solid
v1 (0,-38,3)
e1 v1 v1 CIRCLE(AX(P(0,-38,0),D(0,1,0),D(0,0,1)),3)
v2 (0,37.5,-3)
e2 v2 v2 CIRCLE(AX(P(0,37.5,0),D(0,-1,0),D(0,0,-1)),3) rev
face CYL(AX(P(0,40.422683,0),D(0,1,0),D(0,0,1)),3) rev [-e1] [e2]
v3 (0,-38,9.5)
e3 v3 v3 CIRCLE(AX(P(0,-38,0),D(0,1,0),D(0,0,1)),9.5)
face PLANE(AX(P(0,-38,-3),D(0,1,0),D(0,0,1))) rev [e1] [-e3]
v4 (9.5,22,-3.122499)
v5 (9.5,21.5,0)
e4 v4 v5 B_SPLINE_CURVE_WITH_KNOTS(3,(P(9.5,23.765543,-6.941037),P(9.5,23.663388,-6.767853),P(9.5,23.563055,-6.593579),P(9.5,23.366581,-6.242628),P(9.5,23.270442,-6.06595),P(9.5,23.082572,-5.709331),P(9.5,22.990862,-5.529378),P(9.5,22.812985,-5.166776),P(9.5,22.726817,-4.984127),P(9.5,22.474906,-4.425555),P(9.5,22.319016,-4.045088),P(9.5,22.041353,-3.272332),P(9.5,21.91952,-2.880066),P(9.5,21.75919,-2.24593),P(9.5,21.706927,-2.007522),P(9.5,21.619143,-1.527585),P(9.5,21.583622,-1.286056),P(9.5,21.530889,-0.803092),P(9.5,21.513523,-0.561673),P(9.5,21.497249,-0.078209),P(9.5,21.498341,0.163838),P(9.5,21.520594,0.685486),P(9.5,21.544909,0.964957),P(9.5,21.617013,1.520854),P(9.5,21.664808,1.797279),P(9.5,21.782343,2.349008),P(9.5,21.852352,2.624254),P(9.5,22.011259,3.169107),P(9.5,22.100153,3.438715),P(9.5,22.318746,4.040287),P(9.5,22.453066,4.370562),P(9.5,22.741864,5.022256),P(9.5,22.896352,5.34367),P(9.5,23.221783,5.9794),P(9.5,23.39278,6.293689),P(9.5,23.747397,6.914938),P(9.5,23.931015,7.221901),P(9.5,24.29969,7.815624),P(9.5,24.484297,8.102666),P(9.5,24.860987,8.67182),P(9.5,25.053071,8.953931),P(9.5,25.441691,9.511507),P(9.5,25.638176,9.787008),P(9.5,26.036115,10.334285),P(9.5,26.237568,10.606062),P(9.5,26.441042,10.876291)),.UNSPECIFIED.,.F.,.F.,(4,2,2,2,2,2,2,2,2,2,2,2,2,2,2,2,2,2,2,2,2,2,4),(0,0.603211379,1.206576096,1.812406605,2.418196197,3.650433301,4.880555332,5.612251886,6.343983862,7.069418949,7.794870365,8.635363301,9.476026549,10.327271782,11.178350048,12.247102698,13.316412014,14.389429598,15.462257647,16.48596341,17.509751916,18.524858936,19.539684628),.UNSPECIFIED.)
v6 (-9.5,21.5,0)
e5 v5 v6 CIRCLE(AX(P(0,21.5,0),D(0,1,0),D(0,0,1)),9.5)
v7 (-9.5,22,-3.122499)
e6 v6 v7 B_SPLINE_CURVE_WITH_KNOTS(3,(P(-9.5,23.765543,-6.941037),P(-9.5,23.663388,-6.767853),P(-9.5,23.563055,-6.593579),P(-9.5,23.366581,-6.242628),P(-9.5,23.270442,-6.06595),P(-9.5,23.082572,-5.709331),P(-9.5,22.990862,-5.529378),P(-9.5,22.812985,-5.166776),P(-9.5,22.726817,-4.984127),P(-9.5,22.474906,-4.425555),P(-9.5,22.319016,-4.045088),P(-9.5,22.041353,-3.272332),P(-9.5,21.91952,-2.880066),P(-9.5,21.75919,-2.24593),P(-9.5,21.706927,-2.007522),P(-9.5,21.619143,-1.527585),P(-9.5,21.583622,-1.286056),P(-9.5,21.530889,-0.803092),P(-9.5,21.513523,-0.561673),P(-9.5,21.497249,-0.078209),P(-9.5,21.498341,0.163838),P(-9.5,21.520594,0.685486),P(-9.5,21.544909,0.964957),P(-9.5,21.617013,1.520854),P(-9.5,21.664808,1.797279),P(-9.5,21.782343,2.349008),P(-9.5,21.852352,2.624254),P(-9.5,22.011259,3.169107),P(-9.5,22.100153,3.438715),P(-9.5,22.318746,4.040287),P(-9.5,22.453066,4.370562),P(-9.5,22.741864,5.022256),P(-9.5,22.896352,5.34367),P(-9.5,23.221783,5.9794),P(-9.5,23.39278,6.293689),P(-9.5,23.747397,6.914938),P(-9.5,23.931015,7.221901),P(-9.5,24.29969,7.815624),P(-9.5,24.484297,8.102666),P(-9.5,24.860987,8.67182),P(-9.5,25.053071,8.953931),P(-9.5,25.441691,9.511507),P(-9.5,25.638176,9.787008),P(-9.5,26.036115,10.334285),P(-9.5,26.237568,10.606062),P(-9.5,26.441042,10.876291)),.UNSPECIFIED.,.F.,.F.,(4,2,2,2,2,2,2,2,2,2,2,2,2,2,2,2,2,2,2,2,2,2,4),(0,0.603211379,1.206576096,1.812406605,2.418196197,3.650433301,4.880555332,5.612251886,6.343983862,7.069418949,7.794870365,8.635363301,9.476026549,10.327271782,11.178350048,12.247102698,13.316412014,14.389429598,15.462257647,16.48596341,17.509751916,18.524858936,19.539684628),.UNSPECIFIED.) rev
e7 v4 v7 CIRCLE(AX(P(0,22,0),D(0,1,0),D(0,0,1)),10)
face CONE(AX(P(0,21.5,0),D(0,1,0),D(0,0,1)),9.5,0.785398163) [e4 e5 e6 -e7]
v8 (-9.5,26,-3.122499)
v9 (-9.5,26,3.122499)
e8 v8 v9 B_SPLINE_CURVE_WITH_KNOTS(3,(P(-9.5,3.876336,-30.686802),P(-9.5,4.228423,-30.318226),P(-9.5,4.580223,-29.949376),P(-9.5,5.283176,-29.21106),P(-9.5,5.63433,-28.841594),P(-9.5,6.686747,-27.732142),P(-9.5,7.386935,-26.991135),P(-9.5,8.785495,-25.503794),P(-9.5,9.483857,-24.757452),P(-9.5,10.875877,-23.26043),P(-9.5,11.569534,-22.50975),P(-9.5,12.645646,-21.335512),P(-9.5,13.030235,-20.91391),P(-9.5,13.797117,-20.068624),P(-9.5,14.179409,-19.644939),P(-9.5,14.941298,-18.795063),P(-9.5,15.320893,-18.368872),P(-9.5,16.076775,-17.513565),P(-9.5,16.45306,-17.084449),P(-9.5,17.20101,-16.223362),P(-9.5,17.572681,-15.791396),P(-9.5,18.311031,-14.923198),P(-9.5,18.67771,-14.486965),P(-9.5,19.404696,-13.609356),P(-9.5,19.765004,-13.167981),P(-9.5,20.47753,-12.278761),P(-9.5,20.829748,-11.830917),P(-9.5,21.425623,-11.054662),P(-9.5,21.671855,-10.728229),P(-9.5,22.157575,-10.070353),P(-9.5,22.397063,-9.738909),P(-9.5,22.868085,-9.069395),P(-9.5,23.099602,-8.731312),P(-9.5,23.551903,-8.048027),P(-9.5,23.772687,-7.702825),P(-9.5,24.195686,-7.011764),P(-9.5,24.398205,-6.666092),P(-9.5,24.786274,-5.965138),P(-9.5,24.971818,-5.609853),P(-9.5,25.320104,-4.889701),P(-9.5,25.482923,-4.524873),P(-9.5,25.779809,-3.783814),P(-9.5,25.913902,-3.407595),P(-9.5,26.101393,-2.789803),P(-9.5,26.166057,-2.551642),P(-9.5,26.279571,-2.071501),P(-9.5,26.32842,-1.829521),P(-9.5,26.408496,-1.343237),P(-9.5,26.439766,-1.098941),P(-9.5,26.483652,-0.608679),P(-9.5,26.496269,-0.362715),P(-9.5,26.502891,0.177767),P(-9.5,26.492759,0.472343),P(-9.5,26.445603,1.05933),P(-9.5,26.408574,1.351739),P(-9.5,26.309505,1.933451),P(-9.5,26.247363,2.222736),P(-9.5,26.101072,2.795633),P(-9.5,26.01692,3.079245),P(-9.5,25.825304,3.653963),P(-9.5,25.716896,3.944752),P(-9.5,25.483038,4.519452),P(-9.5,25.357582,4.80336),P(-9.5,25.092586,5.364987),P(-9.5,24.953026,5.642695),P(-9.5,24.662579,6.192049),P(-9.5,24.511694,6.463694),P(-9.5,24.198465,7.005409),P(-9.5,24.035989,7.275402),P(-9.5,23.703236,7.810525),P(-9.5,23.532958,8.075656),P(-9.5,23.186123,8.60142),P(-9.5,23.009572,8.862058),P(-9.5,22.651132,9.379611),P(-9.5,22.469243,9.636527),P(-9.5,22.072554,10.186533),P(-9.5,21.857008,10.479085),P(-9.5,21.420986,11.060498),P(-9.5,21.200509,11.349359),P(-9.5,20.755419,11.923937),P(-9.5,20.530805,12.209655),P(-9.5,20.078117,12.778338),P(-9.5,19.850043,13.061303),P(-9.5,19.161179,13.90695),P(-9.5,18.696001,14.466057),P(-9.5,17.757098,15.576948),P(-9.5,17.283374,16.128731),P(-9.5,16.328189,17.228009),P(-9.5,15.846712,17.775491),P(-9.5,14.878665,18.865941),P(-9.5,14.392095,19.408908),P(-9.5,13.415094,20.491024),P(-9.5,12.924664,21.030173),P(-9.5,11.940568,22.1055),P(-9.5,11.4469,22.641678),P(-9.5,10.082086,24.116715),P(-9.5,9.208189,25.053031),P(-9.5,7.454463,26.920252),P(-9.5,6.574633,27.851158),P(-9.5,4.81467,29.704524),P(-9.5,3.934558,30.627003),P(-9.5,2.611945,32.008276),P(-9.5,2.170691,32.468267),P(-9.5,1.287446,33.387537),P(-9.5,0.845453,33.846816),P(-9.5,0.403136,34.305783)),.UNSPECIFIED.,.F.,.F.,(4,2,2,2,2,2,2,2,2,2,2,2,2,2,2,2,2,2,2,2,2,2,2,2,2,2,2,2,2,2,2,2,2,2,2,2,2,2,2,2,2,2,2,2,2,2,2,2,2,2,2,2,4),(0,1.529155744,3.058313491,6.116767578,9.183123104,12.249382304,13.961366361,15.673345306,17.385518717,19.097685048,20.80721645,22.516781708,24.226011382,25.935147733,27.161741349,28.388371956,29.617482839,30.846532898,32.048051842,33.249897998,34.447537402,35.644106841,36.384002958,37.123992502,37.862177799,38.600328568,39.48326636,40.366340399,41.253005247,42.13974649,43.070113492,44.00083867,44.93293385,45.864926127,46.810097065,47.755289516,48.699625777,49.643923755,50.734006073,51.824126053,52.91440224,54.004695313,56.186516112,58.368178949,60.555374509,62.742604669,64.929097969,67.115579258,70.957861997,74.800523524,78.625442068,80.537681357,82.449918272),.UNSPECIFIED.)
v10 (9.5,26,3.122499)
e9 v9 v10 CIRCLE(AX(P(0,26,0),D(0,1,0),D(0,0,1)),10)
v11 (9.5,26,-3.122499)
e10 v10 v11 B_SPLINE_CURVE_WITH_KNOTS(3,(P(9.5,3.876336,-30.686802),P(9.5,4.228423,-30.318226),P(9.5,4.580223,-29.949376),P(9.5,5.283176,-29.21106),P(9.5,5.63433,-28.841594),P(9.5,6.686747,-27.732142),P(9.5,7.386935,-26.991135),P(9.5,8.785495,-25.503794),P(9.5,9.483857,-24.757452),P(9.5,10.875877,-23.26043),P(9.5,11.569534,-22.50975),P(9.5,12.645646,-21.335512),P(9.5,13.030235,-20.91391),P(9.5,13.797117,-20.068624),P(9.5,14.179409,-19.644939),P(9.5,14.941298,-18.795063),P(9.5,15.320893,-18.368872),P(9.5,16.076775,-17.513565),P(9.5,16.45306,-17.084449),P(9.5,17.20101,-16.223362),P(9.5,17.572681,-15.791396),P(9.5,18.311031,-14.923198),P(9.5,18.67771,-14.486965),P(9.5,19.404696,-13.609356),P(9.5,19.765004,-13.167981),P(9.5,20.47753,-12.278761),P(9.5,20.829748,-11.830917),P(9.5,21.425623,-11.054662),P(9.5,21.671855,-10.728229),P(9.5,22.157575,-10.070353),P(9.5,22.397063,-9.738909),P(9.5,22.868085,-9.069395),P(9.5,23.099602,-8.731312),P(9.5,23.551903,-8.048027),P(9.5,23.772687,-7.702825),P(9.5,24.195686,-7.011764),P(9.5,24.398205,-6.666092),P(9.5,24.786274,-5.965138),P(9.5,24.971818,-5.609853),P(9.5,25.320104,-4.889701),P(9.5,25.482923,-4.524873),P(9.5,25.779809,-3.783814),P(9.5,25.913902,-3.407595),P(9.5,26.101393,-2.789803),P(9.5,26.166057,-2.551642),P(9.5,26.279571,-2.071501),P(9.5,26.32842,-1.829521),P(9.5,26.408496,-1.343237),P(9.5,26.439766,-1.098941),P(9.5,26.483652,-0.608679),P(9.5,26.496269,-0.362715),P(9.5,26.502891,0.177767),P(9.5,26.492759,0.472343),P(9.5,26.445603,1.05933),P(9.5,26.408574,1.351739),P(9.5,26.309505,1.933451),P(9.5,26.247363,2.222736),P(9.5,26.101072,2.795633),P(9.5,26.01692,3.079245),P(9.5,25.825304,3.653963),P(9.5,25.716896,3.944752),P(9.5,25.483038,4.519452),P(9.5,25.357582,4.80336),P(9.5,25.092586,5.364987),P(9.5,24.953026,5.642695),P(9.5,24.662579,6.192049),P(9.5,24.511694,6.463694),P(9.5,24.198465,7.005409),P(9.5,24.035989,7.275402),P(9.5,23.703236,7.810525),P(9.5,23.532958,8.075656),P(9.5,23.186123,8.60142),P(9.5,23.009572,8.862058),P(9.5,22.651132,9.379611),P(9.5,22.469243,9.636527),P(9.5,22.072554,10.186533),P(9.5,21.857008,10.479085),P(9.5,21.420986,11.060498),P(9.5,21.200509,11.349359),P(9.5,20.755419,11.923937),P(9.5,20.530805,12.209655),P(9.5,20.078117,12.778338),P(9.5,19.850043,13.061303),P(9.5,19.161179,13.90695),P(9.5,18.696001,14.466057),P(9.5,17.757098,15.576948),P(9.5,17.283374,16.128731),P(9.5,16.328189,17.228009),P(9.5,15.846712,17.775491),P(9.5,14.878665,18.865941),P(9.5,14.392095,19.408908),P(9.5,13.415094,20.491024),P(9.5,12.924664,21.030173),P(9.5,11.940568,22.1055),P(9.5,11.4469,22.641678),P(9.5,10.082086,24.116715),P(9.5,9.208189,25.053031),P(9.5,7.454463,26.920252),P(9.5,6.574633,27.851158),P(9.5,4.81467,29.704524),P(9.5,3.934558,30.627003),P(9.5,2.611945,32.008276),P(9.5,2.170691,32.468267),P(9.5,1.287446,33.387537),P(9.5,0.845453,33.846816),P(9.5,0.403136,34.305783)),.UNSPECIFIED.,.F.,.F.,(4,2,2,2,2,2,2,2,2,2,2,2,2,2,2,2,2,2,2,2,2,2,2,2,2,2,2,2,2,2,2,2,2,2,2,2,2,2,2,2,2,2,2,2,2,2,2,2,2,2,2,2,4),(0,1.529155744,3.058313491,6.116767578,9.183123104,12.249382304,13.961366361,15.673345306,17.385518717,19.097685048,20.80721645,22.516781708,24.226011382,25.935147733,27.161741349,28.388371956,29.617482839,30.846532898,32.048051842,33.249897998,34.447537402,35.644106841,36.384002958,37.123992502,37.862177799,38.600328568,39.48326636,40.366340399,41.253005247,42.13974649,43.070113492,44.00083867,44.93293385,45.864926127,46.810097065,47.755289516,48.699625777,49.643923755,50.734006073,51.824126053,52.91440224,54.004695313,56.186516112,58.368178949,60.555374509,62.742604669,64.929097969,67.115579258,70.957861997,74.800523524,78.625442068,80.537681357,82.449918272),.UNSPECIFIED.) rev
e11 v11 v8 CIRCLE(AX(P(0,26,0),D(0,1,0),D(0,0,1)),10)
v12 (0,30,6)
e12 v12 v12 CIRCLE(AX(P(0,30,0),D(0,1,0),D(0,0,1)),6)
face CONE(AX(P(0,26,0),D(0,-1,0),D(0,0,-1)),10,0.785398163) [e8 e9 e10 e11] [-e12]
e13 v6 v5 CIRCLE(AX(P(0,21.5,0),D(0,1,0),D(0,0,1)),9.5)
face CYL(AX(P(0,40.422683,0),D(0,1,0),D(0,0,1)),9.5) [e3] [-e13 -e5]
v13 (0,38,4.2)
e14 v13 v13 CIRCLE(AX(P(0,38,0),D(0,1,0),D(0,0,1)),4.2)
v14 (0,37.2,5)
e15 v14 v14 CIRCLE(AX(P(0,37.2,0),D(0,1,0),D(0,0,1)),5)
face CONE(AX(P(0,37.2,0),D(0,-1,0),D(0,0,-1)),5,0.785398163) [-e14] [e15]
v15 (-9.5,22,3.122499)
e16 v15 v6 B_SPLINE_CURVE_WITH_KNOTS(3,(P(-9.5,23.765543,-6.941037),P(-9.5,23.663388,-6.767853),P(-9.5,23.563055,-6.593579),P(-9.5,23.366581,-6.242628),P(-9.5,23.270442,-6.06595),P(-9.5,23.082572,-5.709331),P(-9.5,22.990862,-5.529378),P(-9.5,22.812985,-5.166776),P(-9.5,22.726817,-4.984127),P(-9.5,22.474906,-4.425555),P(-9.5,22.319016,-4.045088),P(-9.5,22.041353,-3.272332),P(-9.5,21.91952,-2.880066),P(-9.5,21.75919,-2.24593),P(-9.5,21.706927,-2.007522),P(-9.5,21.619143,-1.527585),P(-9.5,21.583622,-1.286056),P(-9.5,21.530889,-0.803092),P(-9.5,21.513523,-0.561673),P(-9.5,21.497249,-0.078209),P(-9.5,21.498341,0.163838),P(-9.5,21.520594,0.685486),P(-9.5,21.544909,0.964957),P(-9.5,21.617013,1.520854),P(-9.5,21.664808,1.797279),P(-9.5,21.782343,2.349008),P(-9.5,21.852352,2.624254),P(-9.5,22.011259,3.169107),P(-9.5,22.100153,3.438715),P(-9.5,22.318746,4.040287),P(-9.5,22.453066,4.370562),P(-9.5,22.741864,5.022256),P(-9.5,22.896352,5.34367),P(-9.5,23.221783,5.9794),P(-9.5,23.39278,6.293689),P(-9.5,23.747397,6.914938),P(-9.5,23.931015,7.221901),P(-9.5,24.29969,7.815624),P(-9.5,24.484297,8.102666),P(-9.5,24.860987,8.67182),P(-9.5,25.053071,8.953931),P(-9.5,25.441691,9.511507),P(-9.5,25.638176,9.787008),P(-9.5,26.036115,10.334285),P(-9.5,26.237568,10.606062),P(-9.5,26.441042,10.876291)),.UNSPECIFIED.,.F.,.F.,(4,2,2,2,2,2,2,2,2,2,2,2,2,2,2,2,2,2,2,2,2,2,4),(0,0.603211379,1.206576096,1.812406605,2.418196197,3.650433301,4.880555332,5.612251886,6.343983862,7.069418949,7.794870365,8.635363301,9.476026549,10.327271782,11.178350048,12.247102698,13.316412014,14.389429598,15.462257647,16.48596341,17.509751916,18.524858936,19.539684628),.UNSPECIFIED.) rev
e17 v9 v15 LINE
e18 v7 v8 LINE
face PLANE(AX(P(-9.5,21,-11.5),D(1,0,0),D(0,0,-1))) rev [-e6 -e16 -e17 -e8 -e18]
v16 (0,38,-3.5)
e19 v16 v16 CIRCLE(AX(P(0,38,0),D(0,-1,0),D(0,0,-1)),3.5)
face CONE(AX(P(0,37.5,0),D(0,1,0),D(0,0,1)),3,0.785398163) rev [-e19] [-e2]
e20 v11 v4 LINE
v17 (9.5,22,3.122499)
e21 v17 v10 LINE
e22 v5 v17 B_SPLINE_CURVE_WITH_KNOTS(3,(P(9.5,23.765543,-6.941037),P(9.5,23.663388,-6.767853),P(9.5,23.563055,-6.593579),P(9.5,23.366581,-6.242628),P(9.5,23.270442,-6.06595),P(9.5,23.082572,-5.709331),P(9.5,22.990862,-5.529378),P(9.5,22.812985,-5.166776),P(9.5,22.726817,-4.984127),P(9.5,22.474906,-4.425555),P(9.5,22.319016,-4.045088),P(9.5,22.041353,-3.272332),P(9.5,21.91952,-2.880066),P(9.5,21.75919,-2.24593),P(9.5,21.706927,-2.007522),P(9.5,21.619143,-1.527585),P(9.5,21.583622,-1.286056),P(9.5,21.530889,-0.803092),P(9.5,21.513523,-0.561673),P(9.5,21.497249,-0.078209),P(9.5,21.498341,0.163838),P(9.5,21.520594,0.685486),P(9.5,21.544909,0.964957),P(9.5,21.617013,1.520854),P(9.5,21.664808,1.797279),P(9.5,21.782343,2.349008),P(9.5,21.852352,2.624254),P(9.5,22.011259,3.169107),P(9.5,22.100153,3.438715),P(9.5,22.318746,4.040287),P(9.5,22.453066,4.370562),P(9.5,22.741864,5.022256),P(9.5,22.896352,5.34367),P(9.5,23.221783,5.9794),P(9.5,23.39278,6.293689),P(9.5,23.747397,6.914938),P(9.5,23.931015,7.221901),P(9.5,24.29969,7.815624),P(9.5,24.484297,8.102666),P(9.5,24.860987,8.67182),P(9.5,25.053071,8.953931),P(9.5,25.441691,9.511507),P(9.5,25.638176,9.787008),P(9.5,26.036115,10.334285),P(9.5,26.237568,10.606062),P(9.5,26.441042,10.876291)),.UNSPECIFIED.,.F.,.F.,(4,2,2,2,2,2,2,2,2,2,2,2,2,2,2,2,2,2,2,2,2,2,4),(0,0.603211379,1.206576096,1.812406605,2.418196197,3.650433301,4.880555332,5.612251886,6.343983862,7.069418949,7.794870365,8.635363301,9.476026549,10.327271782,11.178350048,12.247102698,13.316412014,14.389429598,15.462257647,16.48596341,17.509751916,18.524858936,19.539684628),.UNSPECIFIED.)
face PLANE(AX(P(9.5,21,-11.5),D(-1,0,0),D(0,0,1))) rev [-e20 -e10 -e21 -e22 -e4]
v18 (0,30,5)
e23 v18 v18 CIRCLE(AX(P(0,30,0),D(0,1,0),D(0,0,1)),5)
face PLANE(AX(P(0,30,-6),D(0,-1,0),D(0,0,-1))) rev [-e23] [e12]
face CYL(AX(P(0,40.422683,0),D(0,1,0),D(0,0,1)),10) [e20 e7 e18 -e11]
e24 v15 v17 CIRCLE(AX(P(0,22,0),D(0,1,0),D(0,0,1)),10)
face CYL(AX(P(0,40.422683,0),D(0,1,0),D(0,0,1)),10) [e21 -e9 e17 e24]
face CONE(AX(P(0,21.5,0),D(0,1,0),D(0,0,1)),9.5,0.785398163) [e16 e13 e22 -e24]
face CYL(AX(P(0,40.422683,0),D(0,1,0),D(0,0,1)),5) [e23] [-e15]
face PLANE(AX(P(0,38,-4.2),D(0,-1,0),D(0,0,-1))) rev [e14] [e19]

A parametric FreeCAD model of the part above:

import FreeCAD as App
import Part
import Sketcher
Q = App.Units.Quantity


def edges_at(feature, points):
    """Names of the edges that pass closest to the given points."""
    edges = feature.Shape.Edges
    near = lambda p: min(range(len(edges)), key=lambda i: edges[i].distToShape(Part.Vertex(*p))[0])
    return sorted({f"Edge{near(p) + 1}" for p in points})


def add_polygon(sketch, points):
    """Adds a closed chain of lines whose ends are joined by coincident constraints."""
    first, n = sketch.GeometryCount, len(points)
    for a, b in zip(points, points[1:] + points[:1]):
        sketch.addGeometry(Part.LineSegment(App.Vector(*a, 0), App.Vector(*b, 0)), False)
    for i in range(n):
        sketch.addConstraint(Sketcher.Constraint("Coincident", first + i, 2, first + (i + 1) % n, 1))

doc = App.newDocument("Part")
body = doc.addObject("PartDesign::Body", "Body")

# Sketch on YZ plane
sketch1 = body.newObject("Sketcher::SketchObject", "Sketch")
sketch1.AttachmentSupport = (doc.getObject("YZ_Plane"), [""])
sketch1.MapMode = "FlatFace"
add_polygon(sketch1, [(38, -3), (-38, -3), (-38, -9.5), (21.5, -9.5), (22, -10), (26, -10), (30, -6), (30, -5), (37.2, -5), (38, -4.2)])  # lines 0-9
sketch1.addConstraint(Sketcher.Constraint("Horizontal", 0))
sketch1.addConstraint(Sketcher.Constraint("Vertical", 1))
sketch1.addConstraint(Sketcher.Constraint("Horizontal", 2))
sketch1.addConstraint(Sketcher.Constraint("Horizontal", 4))
sketch1.addConstraint(Sketcher.Constraint("Vertical", 6))
sketch1.addConstraint(Sketcher.Constraint("Horizontal", 7))
sketch1.addConstraint(Sketcher.Constraint("Vertical", 9))
sketch1.addConstraint(Sketcher.Constraint("Perpendicular", 3, 5))
sketch1.addConstraint(Sketcher.Constraint("Parallel", 5, 8))
sketch1.addConstraint(Sketcher.Constraint("DistanceX", 0, 2, 0, 1, 76.0))
sketch1.addConstraint(Sketcher.Constraint("DistanceX", 4, 1, 4, 2, 4.0))
sketch1.addConstraint(Sketcher.Constraint("DistanceY", 6, 1, 6, 2, 1.0))
sketch1.addConstraint(Sketcher.Constraint("Angle", 3, Q("-45 deg")))
sketch1.addConstraint(Sketcher.Constraint("DistanceX", 2, 1, 2, 2, 59.5))
sketch1.addConstraint(Sketcher.Constraint("DistanceX", 7, 1, 7, 2, 7.2))
sketch1.addConstraint(Sketcher.Constraint("DistanceY", 1, 2, 1, 1, 6.5))
sketch1.addConstraint(Sketcher.Constraint("DistanceY", 9, 1, 9, 2, 1.2))
sketch1.addConstraint(Sketcher.Constraint("DistanceX", 0, 2, -1, 1, 38.0))
sketch1.addConstraint(Sketcher.Constraint("DistanceY", 0, 2, -1, 1, 3.0))
sketch1.addConstraint(Sketcher.Constraint("DistanceX", -1, 1, 5, 2, 30.0))
revolution = body.newObject("PartDesign::Revolution", "Revolution")
revolution.Profile = sketch1
revolution.ReferenceAxis = (sketch1, ["H_Axis"])
revolution.Angle = 360

# Sketch on XZ plane
sketch2 = body.newObject("Sketcher::SketchObject", "Sketch001")
sketch2.AttachmentSupport = (doc.getObject("XZ_Plane"), [""])
sketch2.MapMode = "FlatFace"
sketch2.AttachmentOffset = App.Placement(App.Vector(0, 0, -30), App.Rotation())
add_polygon(sketch2, [(10, -12), (10, 12), (14, 12), (14, -12)])  # lines 0-3
add_polygon(sketch2, [(-14, -12), (-14, 12), (-10, 12), (-10, -12)])  # lines 4-7
sketch2.addConstraint(Sketcher.Constraint("Vertical", 0))
sketch2.addConstraint(Sketcher.Constraint("Horizontal", 1))
sketch2.addConstraint(Sketcher.Constraint("Vertical", 2))
sketch2.addConstraint(Sketcher.Constraint("Horizontal", 3))
sketch2.addConstraint(Sketcher.Constraint("Vertical", 4))
sketch2.addConstraint(Sketcher.Constraint("Horizontal", 5))
sketch2.addConstraint(Sketcher.Constraint("Vertical", 6))
sketch2.addConstraint(Sketcher.Constraint("Horizontal", 7))
sketch2.addConstraint(Sketcher.Constraint("Symmetric", 2, 2, 4, 2, -1, 1))
sketch2.addConstraint(Sketcher.Constraint("Symmetric", 0, 2, 6, 2, -1, 1))
sketch2.addConstraint(Sketcher.Constraint("Horizontal", 1, 2, 4, 2))
sketch2.addConstraint(Sketcher.Constraint("DistanceX", 1, 1, 1, 2, 5.0))
sketch2.addConstraint(Sketcher.Constraint("DistanceY", 0, 1, 0, 2, 23.0))
sketch2.addConstraint(Sketcher.Constraint("DistanceX", 4, 2, 0, 2, 24.0))
pocket1 = body.newObject("PartDesign::Pocket", "Pocket")
pocket1.Profile = sketch2
pocket1.Length = 9
pocket1.Reversed = True
doc.recompute()

chamfer = body.newObject("PartDesign::Chamfer", "Chamfer")
chamfer.Base = (pocket1, edges_at(pocket1, [(0, 38, -3)]))
chamfer.Size = 0.5

doc.recompute()
